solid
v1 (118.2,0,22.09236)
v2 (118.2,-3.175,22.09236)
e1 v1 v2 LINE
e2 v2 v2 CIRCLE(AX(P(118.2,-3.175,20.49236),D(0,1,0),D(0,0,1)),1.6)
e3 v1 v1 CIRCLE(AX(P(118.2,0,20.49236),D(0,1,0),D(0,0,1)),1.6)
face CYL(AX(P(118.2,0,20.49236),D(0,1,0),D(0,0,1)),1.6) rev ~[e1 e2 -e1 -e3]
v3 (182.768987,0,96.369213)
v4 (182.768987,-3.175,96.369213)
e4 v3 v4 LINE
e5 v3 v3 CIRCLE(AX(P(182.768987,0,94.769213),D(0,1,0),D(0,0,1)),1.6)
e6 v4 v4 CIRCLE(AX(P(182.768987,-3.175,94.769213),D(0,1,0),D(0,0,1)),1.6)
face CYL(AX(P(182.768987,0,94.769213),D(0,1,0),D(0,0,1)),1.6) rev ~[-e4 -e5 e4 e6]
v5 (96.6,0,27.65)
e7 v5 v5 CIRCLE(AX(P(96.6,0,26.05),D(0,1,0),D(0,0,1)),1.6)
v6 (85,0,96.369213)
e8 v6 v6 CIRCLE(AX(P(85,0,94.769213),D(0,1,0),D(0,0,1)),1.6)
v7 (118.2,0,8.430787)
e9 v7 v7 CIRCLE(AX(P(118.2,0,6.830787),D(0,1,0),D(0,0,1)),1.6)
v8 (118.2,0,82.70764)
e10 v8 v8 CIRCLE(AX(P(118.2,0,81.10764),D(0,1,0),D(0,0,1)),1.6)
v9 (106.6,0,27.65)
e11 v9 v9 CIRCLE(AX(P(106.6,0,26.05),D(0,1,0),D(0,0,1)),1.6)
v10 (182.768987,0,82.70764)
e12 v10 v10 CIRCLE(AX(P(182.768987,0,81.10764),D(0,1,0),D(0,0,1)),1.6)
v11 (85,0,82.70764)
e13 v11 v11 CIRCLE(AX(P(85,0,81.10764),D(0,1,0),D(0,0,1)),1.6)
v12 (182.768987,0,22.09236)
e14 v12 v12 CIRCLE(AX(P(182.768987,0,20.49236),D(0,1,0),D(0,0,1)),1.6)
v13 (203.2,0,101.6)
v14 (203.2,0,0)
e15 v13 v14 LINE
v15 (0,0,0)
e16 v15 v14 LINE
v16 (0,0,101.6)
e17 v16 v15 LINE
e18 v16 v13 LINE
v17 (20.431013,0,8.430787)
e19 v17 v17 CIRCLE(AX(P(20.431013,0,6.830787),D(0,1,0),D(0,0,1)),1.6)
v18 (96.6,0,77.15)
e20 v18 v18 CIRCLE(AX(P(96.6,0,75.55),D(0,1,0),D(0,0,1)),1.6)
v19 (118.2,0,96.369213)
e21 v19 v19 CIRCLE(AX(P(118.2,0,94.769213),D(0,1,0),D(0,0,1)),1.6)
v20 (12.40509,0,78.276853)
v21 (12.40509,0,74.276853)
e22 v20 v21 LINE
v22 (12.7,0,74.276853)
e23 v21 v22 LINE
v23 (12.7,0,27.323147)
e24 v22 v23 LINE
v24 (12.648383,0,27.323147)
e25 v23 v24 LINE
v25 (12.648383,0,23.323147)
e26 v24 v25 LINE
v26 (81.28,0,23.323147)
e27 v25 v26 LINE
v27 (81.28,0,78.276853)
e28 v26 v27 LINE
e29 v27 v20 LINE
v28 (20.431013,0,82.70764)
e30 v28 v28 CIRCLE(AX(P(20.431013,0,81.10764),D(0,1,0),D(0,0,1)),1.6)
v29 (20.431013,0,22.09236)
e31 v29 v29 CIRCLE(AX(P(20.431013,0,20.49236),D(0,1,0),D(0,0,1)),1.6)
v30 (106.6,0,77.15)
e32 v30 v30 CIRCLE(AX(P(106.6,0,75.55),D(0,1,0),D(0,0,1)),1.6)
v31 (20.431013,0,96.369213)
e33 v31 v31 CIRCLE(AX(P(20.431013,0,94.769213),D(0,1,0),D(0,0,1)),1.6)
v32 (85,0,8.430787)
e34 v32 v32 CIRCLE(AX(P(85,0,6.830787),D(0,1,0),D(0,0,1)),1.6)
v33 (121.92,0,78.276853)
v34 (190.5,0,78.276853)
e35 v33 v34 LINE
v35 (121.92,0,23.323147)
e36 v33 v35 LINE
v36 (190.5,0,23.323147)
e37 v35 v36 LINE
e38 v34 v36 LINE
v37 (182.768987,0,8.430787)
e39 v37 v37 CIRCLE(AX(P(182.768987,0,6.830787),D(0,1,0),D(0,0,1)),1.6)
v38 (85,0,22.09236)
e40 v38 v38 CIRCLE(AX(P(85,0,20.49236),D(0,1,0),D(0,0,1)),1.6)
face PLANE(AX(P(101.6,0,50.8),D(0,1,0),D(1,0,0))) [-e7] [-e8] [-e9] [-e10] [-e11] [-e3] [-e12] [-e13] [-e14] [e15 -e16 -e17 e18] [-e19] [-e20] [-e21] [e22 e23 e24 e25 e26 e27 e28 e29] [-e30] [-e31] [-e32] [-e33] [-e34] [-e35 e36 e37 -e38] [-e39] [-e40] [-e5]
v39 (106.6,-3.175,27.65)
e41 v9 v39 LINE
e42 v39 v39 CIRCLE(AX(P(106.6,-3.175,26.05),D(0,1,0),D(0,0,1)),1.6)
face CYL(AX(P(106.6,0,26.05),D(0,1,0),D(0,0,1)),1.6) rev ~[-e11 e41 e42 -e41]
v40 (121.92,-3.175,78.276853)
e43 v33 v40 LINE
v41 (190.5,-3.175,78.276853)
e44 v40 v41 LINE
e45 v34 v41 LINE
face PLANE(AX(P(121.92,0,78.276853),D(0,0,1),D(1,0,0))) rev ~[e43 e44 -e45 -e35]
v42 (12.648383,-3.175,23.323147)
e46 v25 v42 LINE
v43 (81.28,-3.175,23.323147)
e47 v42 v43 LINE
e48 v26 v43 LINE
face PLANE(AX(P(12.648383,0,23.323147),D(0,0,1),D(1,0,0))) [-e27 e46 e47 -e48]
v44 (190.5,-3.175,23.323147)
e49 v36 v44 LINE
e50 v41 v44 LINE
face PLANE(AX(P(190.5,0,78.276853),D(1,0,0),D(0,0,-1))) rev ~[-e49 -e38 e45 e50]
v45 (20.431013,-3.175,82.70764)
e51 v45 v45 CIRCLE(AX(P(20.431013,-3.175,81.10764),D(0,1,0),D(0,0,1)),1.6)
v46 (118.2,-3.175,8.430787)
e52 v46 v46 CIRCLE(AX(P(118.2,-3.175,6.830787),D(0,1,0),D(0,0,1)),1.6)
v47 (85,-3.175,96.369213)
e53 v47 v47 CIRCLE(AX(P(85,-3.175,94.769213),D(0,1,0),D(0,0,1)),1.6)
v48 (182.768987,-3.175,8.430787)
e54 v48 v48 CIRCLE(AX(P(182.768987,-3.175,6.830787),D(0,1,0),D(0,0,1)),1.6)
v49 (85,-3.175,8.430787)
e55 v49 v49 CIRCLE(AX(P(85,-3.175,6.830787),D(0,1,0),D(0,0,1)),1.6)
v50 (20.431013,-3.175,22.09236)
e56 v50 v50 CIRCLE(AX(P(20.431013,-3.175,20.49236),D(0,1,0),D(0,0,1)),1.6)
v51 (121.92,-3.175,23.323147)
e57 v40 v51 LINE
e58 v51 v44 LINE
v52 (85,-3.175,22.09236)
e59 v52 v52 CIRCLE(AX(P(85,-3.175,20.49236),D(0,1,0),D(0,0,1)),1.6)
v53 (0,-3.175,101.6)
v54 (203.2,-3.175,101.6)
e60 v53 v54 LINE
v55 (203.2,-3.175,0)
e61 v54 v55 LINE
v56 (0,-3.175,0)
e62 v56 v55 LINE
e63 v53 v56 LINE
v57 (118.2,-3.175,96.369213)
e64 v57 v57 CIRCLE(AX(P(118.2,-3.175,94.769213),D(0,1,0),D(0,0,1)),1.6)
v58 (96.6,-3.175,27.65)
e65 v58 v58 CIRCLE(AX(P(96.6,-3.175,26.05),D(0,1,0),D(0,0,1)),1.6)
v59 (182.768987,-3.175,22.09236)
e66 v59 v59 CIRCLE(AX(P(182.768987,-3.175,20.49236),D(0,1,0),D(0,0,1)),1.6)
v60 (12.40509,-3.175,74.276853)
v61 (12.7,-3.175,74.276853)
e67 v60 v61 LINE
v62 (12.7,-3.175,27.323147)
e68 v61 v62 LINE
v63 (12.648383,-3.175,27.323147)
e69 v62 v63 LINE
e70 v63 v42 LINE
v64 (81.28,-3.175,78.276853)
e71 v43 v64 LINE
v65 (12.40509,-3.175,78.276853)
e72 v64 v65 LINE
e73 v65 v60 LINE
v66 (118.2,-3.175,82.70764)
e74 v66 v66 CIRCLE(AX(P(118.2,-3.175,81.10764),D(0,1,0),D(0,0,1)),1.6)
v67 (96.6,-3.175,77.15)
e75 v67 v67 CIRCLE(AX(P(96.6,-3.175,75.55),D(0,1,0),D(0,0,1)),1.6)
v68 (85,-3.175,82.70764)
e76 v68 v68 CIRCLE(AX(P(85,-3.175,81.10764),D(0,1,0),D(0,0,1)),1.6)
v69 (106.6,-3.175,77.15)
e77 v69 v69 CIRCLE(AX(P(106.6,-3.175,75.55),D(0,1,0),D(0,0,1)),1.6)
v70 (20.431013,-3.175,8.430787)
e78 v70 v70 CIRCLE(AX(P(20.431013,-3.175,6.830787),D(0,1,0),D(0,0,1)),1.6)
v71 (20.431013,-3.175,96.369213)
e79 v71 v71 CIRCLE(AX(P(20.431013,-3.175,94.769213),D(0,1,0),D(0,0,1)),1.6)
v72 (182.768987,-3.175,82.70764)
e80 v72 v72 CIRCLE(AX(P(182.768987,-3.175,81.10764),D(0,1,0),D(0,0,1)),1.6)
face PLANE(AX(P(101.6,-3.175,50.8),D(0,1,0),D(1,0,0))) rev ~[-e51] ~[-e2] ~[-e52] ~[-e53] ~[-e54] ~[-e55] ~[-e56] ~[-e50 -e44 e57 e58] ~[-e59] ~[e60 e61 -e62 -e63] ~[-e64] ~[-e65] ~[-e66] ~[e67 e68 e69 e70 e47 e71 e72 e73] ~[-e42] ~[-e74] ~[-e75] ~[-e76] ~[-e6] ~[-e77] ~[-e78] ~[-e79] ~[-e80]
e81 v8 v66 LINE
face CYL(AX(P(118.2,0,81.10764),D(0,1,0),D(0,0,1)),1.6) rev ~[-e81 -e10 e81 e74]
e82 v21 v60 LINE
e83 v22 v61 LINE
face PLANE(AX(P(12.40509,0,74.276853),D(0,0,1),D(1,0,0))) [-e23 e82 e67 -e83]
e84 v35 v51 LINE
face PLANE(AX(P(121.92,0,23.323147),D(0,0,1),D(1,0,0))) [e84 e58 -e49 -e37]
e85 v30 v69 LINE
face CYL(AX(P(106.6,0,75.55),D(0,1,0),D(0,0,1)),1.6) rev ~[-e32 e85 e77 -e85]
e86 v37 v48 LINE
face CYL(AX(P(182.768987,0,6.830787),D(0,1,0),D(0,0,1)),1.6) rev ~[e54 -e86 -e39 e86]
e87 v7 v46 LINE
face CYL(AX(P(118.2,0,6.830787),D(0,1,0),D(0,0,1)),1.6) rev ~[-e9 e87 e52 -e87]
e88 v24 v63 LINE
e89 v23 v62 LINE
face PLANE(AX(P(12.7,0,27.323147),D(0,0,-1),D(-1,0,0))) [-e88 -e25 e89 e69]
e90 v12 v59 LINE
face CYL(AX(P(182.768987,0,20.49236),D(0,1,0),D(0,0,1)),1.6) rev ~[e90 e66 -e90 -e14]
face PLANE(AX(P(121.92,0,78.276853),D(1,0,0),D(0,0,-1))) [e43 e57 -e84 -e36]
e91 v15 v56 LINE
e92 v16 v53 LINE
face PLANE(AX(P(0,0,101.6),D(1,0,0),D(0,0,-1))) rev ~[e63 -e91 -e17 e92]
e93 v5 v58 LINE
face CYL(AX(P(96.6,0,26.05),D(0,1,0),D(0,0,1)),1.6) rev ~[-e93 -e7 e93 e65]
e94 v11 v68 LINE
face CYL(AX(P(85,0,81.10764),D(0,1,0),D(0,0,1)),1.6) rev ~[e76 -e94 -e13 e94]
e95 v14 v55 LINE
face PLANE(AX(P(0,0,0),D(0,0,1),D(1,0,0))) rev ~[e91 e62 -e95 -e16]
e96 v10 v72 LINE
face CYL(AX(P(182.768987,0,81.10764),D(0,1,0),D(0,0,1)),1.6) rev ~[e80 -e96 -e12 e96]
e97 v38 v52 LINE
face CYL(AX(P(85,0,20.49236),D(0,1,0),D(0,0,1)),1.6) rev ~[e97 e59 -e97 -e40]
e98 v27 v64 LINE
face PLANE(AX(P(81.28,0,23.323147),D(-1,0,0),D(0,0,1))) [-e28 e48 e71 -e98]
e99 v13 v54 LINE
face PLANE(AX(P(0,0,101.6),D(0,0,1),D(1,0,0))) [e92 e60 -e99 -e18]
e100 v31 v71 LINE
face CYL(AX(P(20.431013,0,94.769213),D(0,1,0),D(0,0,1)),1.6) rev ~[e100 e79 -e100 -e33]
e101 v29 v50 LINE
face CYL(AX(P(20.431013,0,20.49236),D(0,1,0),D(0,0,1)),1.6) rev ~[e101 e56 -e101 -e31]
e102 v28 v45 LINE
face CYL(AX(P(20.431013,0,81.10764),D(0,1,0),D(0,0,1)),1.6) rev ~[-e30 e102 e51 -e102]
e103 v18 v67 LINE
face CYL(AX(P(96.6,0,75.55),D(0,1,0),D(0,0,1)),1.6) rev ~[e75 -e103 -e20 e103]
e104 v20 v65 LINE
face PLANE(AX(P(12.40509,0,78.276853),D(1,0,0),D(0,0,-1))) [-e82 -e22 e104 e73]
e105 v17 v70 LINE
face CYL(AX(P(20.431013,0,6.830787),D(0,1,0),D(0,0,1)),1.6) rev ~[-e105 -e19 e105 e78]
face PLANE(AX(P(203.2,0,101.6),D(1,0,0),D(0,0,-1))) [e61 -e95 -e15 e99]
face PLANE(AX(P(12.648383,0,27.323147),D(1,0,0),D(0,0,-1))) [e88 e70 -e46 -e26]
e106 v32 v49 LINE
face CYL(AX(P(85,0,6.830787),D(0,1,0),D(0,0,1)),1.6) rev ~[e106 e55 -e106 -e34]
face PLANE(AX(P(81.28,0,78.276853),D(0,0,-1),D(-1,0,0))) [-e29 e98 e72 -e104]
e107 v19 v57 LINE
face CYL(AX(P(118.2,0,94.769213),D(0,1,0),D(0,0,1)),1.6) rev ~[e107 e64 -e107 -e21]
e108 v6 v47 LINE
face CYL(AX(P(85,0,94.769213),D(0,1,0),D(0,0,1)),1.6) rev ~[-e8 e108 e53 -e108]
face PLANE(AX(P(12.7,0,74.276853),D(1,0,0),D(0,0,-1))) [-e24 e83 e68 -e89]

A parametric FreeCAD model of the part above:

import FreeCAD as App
import Part
import Sketcher

V = App.Vector
Q = App.Units.Quantity

doc = App.newDocument("Part")
params = doc.addObject("Spreadsheet::Sheet", "Params")
for row, (alias, value) in enumerate([
    ("sketch1_width", "8 in"),
    ("sketch1_height", "4 in"),
    ("sketch1_width2", "2.7 in"),
    ("pad1_length", "0.125 in"),
], start=1):
    params.set(f"A{row}", alias)
    params.set(f"B{row}", "=" + value)
    params.setAlias(f"B{row}", alias)

body = doc.addObject("PartDesign::Body", "Body")

# Sketch on XZ plane
sketch1 = body.newObject("Sketcher::SketchObject", "Sketch")
sketch1.AttachmentSupport = (doc.getObject("XZ_Plane"), [""])
sketch1.MapMode = "FlatFace"
sketch1.addGeometry([
    Part.LineSegment(V(0, 0, 0), V(0, 101.6, 0)),  # 0
    Part.LineSegment(V(0, 101.6, 0), V(203.2, 101.6, 0)),  # 1
    Part.LineSegment(V(203.2, 101.6, 0), V(203.2, 0, 0)),  # 2
    Part.LineSegment(V(203.2, 0, 0), V(0, 0, 0)),  # 3
    Part.Circle(V(20.431013, 94.769213, 0), V(0, 0, 1), 1.6),  # 4
    Part.Circle(V(20.431013, 81.10764, 0), V(0, 0, 1), 1.6),  # 5
    Part.Circle(V(85, 94.769213, 0), V(0, 0, 1), 1.6),  # 6
    Part.Circle(V(85, 81.10764, 0), V(0, 0, 1), 1.6),  # 7
    Part.Circle(V(96.6, 75.55, 0), V(0, 0, 1), 1.6),  # 8
    Part.LineSegment(V(81.28, 78.276853, 0), V(12.40509, 78.276853, 0)),  # 9
    Part.LineSegment(V(12.40509, 78.276853, 0), V(12.40509, 74.276853, 0)),  # 10
    Part.LineSegment(V(12.40509, 74.276853, 0), V(12.7, 74.276853, 0)),  # 11
    Part.LineSegment(V(12.7, 74.276853, 0), V(12.7, 27.323147, 0)),  # 12
    Part.LineSegment(V(12.7, 27.323147, 0), V(12.648383, 27.323147, 0)),  # 13
    Part.LineSegment(V(12.648383, 27.323147, 0), V(12.648383, 23.323147, 0)),  # 14
    Part.LineSegment(V(12.648383, 23.323147, 0), V(81.28, 23.323147, 0)),  # 15
    Part.LineSegment(V(81.28, 23.323147, 0), V(81.28, 78.276853, 0)),  # 16
    Part.Circle(V(118.2, 94.769213, 0), V(0, 0, 1), 1.6),  # 17
    Part.Circle(V(118.2, 81.10764, 0), V(0, 0, 1), 1.6),  # 18
    Part.Circle(V(106.6, 75.55, 0), V(0, 0, 1), 1.6),  # 19
    Part.Circle(V(182.768987, 94.769213, 0), V(0, 0, 1), 1.6),  # 20
    Part.Circle(V(182.768987, 81.10764, 0), V(0, 0, 1), 1.6),  # 21
    Part.Circle(V(20.431013, 20.49236, 0), V(0, 0, 1), 1.6),  # 22
    Part.Circle(V(20.431013, 6.830787, 0), V(0, 0, 1), 1.6),  # 23
    Part.Circle(V(96.6, 26.05, 0), V(0, 0, 1), 1.6),  # 24
    Part.Circle(V(85, 20.49236, 0), V(0, 0, 1), 1.6),  # 25
    Part.Circle(V(85, 6.830787, 0), V(0, 0, 1), 1.6),  # 26
    Part.LineSegment(V(190.5, 78.276853, 0), V(121.92, 78.276853, 0)),  # 27
    Part.LineSegment(V(121.92, 78.276853, 0), V(121.92, 23.323147, 0)),  # 28
    Part.LineSegment(V(121.92, 23.323147, 0), V(190.5, 23.323147, 0)),  # 29
    Part.LineSegment(V(190.5, 23.323147, 0), V(190.5, 78.276853, 0)),  # 30
    Part.Circle(V(106.6, 26.05, 0), V(0, 0, 1), 1.6),  # 31
    Part.Circle(V(118.2, 20.49236, 0), V(0, 0, 1), 1.6),  # 32
    Part.Circle(V(118.2, 6.830787, 0), V(0, 0, 1), 1.6),  # 33
    Part.Circle(V(182.768987, 20.49236, 0), V(0, 0, 1), 1.6),  # 34
    Part.Circle(V(182.768987, 6.830787, 0), V(0, 0, 1), 1.6),  # 35
], False)
sketch1.addConstraint([
    Sketcher.Constraint("Coincident", 0, 2, 1, 1),
    Sketcher.Constraint("Coincident", 1, 2, 2, 1),
    Sketcher.Constraint("Coincident", 2, 2, 3, 1),
    Sketcher.Constraint("Coincident", 3, 2, 0, 1),
    Sketcher.Constraint("Coincident", 9, 2, 10, 1),
    Sketcher.Constraint("Coincident", 10, 2, 11, 1),
    Sketcher.Constraint("Coincident", 11, 2, 12, 1),
    Sketcher.Constraint("Coincident", 12, 2, 13, 1),
    Sketcher.Constraint("Coincident", 13, 2, 14, 1),
    Sketcher.Constraint("Coincident", 14, 2, 15, 1),
    Sketcher.Constraint("Coincident", 15, 2, 16, 1),
    Sketcher.Constraint("Coincident", 16, 2, 9, 1),
    Sketcher.Constraint("Coincident", 27, 2, 28, 1),
    Sketcher.Constraint("Coincident", 28, 2, 29, 1),
    Sketcher.Constraint("Coincident", 29, 2, 30, 1),
    Sketcher.Constraint("Coincident", 30, 2, 27, 1),
    Sketcher.Constraint("Vertical", 0),
    Sketcher.Constraint("Horizontal", 1),
    Sketcher.Constraint("Vertical", 2),
    Sketcher.Constraint("Horizontal", 3),
    Sketcher.Constraint("Horizontal", 9),
    Sketcher.Constraint("Vertical", 10),
    Sketcher.Constraint("Horizontal", 11),
    Sketcher.Constraint("Vertical", 12),
    Sketcher.Constraint("Horizontal", 13),
    Sketcher.Constraint("Vertical", 14),
    Sketcher.Constraint("Horizontal", 15),
    Sketcher.Constraint("Vertical", 16),
    Sketcher.Constraint("Horizontal", 27),
    Sketcher.Constraint("Vertical", 28),
    Sketcher.Constraint("Horizontal", 29),
    Sketcher.Constraint("Vertical", 30),
    Sketcher.Constraint("Coincident", 3, 2, -1, 1),
    Sketcher.Constraint("Equal", 4, 5),
    Sketcher.Constraint("Equal", 5, 6),
    Sketcher.Constraint("Equal", 6, 7),
    Sketcher.Constraint("Equal", 7, 8),
    Sketcher.Constraint("Equal", 8, 17),
    Sketcher.Constraint("Equal", 17, 18),
    Sketcher.Constraint("Equal", 18, 19),
    Sketcher.Constraint("Equal", 19, 20),
    Sketcher.Constraint("Equal", 20, 21),
    Sketcher.Constraint("Equal", 21, 22),
    Sketcher.Constraint("Equal", 22, 23),
    Sketcher.Constraint("Equal", 23, 24),
    Sketcher.Constraint("Equal", 24, 25),
    Sketcher.Constraint("Equal", 25, 26),
    Sketcher.Constraint("Equal", 26, 31),
    Sketcher.Constraint("Equal", 31, 32),
    Sketcher.Constraint("Equal", 32, 33),
    Sketcher.Constraint("Equal", 33, 34),
    Sketcher.Constraint("Equal", 34, 35),
    Sketcher.Constraint("Horizontal", 4, 3, 6, 3),
    Sketcher.Constraint("Horizontal", 5, 3, 7, 3),
    Sketcher.Constraint("Horizontal", 6, 3, 17, 3),
    Sketcher.Constraint("Horizontal", 7, 3, 18, 3),
    Sketcher.Constraint("Horizontal", 8, 3, 19, 3),
    Sketcher.Constraint("Horizontal", 17, 3, 20, 3),
    Sketcher.Constraint("Horizontal", 18, 3, 21, 3),
    Sketcher.Constraint("Horizontal", 22, 3, 25, 3),
    Sketcher.Constraint("Horizontal", 23, 3, 26, 3),
    Sketcher.Constraint("Horizontal", 24, 3, 31, 3),
    Sketcher.Constraint("Horizontal", 25, 3, 32, 3),
    Sketcher.Constraint("Horizontal", 26, 3, 33, 3),
    Sketcher.Constraint("Horizontal", 32, 3, 34, 3),
    Sketcher.Constraint("Horizontal", 33, 3, 35, 3),
    Sketcher.Constraint("Horizontal", 16, 2, 27, 2),
    Sketcher.Constraint("Horizontal", 15, 2, 28, 2),
    Sketcher.Constraint("Vertical", 4, 3, 5, 3),
    Sketcher.Constraint("Vertical", 6, 3, 7, 3),
    Sketcher.Constraint("Vertical", 17, 3, 18, 3),
    Sketcher.Constraint("Vertical", 20, 3, 21, 3),
    Sketcher.Constraint("Vertical", 5, 3, 22, 3),
    Sketcher.Constraint("Vertical", 22, 3, 23, 3),
    Sketcher.Constraint("Vertical", 8, 3, 24, 3),
    Sketcher.Constraint("Vertical", 7, 3, 25, 3),
    Sketcher.Constraint("Vertical", 25, 3, 26, 3),
    Sketcher.Constraint("Vertical", 19, 3, 31, 3),
    Sketcher.Constraint("Vertical", 18, 3, 32, 3),
    Sketcher.Constraint("Vertical", 32, 3, 33, 3),
    Sketcher.Constraint("Vertical", 21, 3, 34, 3),
    Sketcher.Constraint("Vertical", 34, 3, 35, 3),
    Sketcher.Constraint("Equal", 10, 14),
    Sketcher.Constraint("DistanceX", 1, 1, 1, 2, Q("8 in")),
    Sketcher.Constraint("DistanceY", 0, 1, 0, 2, Q("4 in")),
    Sketcher.Constraint("DistanceX", 27, 2, 27, 1, Q("2.7 in")),
    Sketcher.Constraint("DistanceX", -1, 1, 11, 2, Q("0.5 in")),
    Sketcher.Constraint("DistanceX", -1, 1, 15, 2, Q("3.2 in")),
    Sketcher.Constraint("DistanceX", -1, 1, 27, 2, Q("4.8 in")),
    Sketcher.Constraint("Diameter", 4, 3.2),
    Sketcher.Constraint("DistanceY", 10, 2, 10, 1, 4.0),
    Sketcher.Constraint("DistanceX", 9, 2, 9, 1, 68.87491),
    Sketcher.Constraint("DistanceX", -1, 1, 6, 3, 85.0),
    Sketcher.Constraint("DistanceX", -1, 1, 8, 3, 96.6),
    Sketcher.Constraint("DistanceY", -1, 1, 8, 3, 75.55),
    Sketcher.Constraint("DistanceX", -1, 1, 17, 3, 118.2),
    Sketcher.Constraint("DistanceX", -1, 1, 19, 3, 106.6),
    Sketcher.Constraint("DistanceY", -1, 1, 24, 3, 26.05),
    Sketcher.Constraint("DistanceX", 13, 2, 13, 1, 0.051617),
    Sketcher.Constraint("DistanceY", 12, 2, 12, 1, 46.953706),
    Sketcher.Constraint("DistanceY", -1, 1, 5, 3, 81.10764),
    Sketcher.Constraint("DistanceY", -1, 1, 22, 3, 20.49236),
    Sketcher.Constraint("DistanceY", 9, 2, 4, 3, 16.49236),
    Sketcher.Constraint("DistanceY", 23, 3, 12, 2, 20.49236),
    Sketcher.Constraint("DistanceX", 13, 2, 22, 3, 7.78263),
    Sketcher.Constraint("DistanceY", -1, 1, 4, 3, 94.769213),
    Sketcher.Constraint("DistanceX", -1, 1, 20, 3, 182.768987),
])
sketch1.setExpression("Constraints[83]", "Params.sketch1_width")
sketch1.setExpression("Constraints[84]", "Params.sketch1_height")
sketch1.setExpression("Constraints[85]", "Params.sketch1_width2")
pad1 = body.newObject("PartDesign::Pad", "Pad")
pad1.Profile = sketch1
pad1.setExpression("Length", "Params.pad1_length")

doc.recompute()
